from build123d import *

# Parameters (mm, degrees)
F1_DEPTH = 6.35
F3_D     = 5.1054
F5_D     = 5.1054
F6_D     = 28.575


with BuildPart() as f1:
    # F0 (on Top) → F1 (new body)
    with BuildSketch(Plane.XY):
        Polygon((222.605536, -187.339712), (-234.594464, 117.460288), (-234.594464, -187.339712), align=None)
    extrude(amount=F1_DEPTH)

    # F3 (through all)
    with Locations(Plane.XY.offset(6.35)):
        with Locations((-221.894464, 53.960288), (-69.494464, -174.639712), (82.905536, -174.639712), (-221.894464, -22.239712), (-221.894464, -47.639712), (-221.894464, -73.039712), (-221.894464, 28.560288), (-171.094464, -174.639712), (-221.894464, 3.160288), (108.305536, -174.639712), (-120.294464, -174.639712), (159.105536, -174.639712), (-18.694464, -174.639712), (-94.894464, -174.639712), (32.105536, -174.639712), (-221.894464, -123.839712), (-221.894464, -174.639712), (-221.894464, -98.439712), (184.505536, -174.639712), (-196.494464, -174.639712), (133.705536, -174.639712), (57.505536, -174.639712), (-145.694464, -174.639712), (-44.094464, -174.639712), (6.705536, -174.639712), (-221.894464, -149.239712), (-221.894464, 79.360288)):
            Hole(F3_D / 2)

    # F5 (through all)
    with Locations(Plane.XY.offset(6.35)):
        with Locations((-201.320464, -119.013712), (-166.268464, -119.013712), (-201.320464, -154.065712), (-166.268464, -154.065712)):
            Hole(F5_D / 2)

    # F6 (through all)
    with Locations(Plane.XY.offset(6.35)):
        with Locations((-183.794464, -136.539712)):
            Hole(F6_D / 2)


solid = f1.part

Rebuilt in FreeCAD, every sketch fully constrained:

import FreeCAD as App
import Part
import Sketcher
Q = App.Units.Quantity

doc = App.newDocument("Part")
body = doc.addObject("PartDesign::Body", "Body")

# Sketch on XY plane
sketch1 = body.newObject("Sketcher::SketchObject", "Sketch")
sketch1.AttachmentSupport = (doc.getObject("XY_Plane"), [""])
sketch1.MapMode = "FlatFace"
sketch1.addGeometry(Part.LineSegment(App.Vector(223, -187, 0), App.Vector(-235, 117, 0)), False)
sketch1.addGeometry(Part.LineSegment(App.Vector(-235, 117, 0), App.Vector(-235, -187, 0)), False)
sketch1.addGeometry(Part.LineSegment(App.Vector(-235, -187, 0), App.Vector(223, -187, 0)), False)
sketch1.addConstraint(Sketcher.Constraint("Coincident", 0, 2, 1, 1))
sketch1.addConstraint(Sketcher.Constraint("Coincident", 1, 2, 2, 1))
sketch1.addConstraint(Sketcher.Constraint("Coincident", 2, 2, 0, 1))
sketch1.addConstraint(Sketcher.Constraint("Vertical", 1))
sketch1.addConstraint(Sketcher.Constraint("Horizontal", 2))
sketch1.addConstraint(Sketcher.Constraint("DistanceX", 2, 1, 2, 2, Q("18 in")))
sketch1.addConstraint(Sketcher.Constraint("DistanceY", 1, 2, 1, 1, Q("12 in")))
sketch1.addConstraint(Sketcher.Constraint("DistanceY", -1, 1, 0, 2, Q("117.460288 mm")))
sketch1.addConstraint(Sketcher.Constraint("DistanceX", 0, 2, -1, 1, Q("234.594464 mm")))
pad1 = body.newObject("PartDesign::Pad", "Pad")
pad1.Profile = sketch1
pad1.Length = Q("0.25 in")

# Sketch on XY plane
sketch2 = body.newObject("Sketcher::SketchObject", "Sketch001")
sketch2.AttachmentSupport = (doc.getObject("XY_Plane"), [""])
sketch2.MapMode = "FlatFace"
sketch2.AttachmentOffset = App.Placement(App.Vector(0, 0, 0.25 * 25.4), App.Rotation())
sketch2.addGeometry(Part.Circle(App.Vector(-221.9, 54, 0), App.Vector(0, 0, 1), 2.6), False)
sketch2.addGeometry(Part.Circle(App.Vector(-69.5, -174.6, 0), App.Vector(0, 0, 1), 2.6), False)
sketch2.addGeometry(Part.Circle(App.Vector(82.9, -174.6, 0), App.Vector(0, 0, 1), 2.6), False)
sketch2.addGeometry(Part.Circle(App.Vector(-221.9, -22.2, 0), App.Vector(0, 0, 1), 2.6), False)
sketch2.addGeometry(Part.Circle(App.Vector(-221.9, -47.6, 0), App.Vector(0, 0, 1), 2.6), False)
sketch2.addGeometry(Part.Circle(App.Vector(-221.9, -73, 0), App.Vector(0, 0, 1), 2.6), False)
sketch2.addGeometry(Part.Circle(App.Vector(-221.9, 28.6, 0), App.Vector(0, 0, 1), 2.6), False)
sketch2.addGeometry(Part.Circle(App.Vector(-171.1, -174.6, 0), App.Vector(0, 0, 1), 2.6), False)
sketch2.addGeometry(Part.Circle(App.Vector(-221.9, 3.2, 0), App.Vector(0, 0, 1), 2.6), False)
sketch2.addGeometry(Part.Circle(App.Vector(108.3, -174.6, 0), App.Vector(0, 0, 1), 2.6), False)
sketch2.addGeometry(Part.Circle(App.Vector(-120.3, -174.6, 0), App.Vector(0, 0, 1), 2.6), False)
sketch2.addGeometry(Part.Circle(App.Vector(159.1, -174.6, 0), App.Vector(0, 0, 1), 2.6), False)
sketch2.addGeometry(Part.Circle(App.Vector(-18.7, -174.6, 0), App.Vector(0, 0, 1), 2.6), False)
sketch2.addGeometry(Part.Circle(App.Vector(-94.9, -174.6, 0), App.Vector(0, 0, 1), 2.6), False)
sketch2.addGeometry(Part.Circle(App.Vector(32.1, -174.6, 0), App.Vector(0, 0, 1), 2.6), False)
sketch2.addGeometry(Part.Circle(App.Vector(-221.9, -123.8, 0), App.Vector(0, 0, 1), 2.6), False)
sketch2.addGeometry(Part.Circle(App.Vector(-221.9, -174.6, 0), App.Vector(0, 0, 1), 2.6), False)
sketch2.addGeometry(Part.Circle(App.Vector(-221.9, -98.4, 0), App.Vector(0, 0, 1), 2.6), False)
sketch2.addGeometry(Part.Circle(App.Vector(184.5, -174.6, 0), App.Vector(0, 0, 1), 2.6), False)
sketch2.addGeometry(Part.Circle(App.Vector(-196.5, -174.6, 0), App.Vector(0, 0, 1), 2.6), False)
sketch2.addGeometry(Part.Circle(App.Vector(133.7, -174.6, 0), App.Vector(0, 0, 1), 2.6), False)
sketch2.addGeometry(Part.Circle(App.Vector(57.5, -174.6, 0), App.Vector(0, 0, 1), 2.6), False)
sketch2.addGeometry(Part.Circle(App.Vector(-145.7, -174.6, 0), App.Vector(0, 0, 1), 2.6), False)
sketch2.addGeometry(Part.Circle(App.Vector(-44.1, -174.6, 0), App.Vector(0, 0, 1), 2.6), False)
sketch2.addGeometry(Part.Circle(App.Vector(6.7, -174.6, 0), App.Vector(0, 0, 1), 2.6), False)
sketch2.addGeometry(Part.Circle(App.Vector(-221.9, -149.2, 0), App.Vector(0, 0, 1), 2.6), False)
sketch2.addGeometry(Part.Circle(App.Vector(-221.9, 79.4, 0), App.Vector(0, 0, 1), 2.6), False)
sketch2.addConstraint(Sketcher.Constraint("Equal", 0, 1))
sketch2.addConstraint(Sketcher.Constraint("Equal", 1, 2))
sketch2.addConstraint(Sketcher.Constraint("Equal", 2, 3))
sketch2.addConstraint(Sketcher.Constraint("Equal", 3, 4))
sketch2.addConstraint(Sketcher.Constraint("Equal", 4, 5))
sketch2.addConstraint(Sketcher.Constraint("Equal", 5, 6))
sketch2.addConstraint(Sketcher.Constraint("Equal", 6, 7))
sketch2.addConstraint(Sketcher.Constraint("Equal", 7, 8))
sketch2.addConstraint(Sketcher.Constraint("Equal", 8, 9))
sketch2.addConstraint(Sketcher.Constraint("Equal", 9, 10))
sketch2.addConstraint(Sketcher.Constraint("Equal", 10, 11))
sketch2.addConstraint(Sketcher.Constraint("Equal", 11, 12))
sketch2.addConstraint(Sketcher.Constraint("Equal", 12, 13))
sketch2.addConstraint(Sketcher.Constraint("Equal", 13, 14))
sketch2.addConstraint(Sketcher.Constraint("Equal", 14, 15))
sketch2.addConstraint(Sketcher.Constraint("Equal", 15, 16))
sketch2.addConstraint(Sketcher.Constraint("Equal", 16, 17))
sketch2.addConstraint(Sketcher.Constraint("Equal", 17, 18))
sketch2.addConstraint(Sketcher.Constraint("Equal", 18, 19))
sketch2.addConstraint(Sketcher.Constraint("Equal", 19, 20))
sketch2.addConstraint(Sketcher.Constraint("Equal", 20, 21))
sketch2.addConstraint(Sketcher.Constraint("Equal", 21, 22))
sketch2.addConstraint(Sketcher.Constraint("Equal", 22, 23))
sketch2.addConstraint(Sketcher.Constraint("Equal", 23, 24))
sketch2.addConstraint(Sketcher.Constraint("Equal", 24, 25))
sketch2.addConstraint(Sketcher.Constraint("Equal", 25, 26))
sketch2.addConstraint(Sketcher.Constraint("Horizontal", 1, 3, 2, 3))
sketch2.addConstraint(Sketcher.Constraint("Horizontal", 2, 3, 7, 3))
sketch2.addConstraint(Sketcher.Constraint("Horizontal", 7, 3, 9, 3))
sketch2.addConstraint(Sketcher.Constraint("Horizontal", 9, 3, 10, 3))
sketch2.addConstraint(Sketcher.Constraint("Horizontal", 10, 3, 11, 3))
sketch2.addConstraint(Sketcher.Constraint("Horizontal", 11, 3, 12, 3))
sketch2.addConstraint(Sketcher.Constraint("Horizontal", 12, 3, 13, 3))
sketch2.addConstraint(Sketcher.Constraint("Horizontal", 13, 3, 14, 3))
sketch2.addConstraint(Sketcher.Constraint("Horizontal", 14, 3, 16, 3))
sketch2.addConstraint(Sketcher.Constraint("Horizontal", 16, 3, 18, 3))
sketch2.addConstraint(Sketcher.Constraint("Horizontal", 18, 3, 19, 3))
sketch2.addConstraint(Sketcher.Constraint("Horizontal", 19, 3, 20, 3))
sketch2.addConstraint(Sketcher.Constraint("Horizontal", 20, 3, 21, 3))
sketch2.addConstraint(Sketcher.Constraint("Horizontal", 21, 3, 22, 3))
sketch2.addConstraint(Sketcher.Constraint("Horizontal", 22, 3, 23, 3))
sketch2.addConstraint(Sketcher.Constraint("Horizontal", 23, 3, 24, 3))
sketch2.addConstraint(Sketcher.Constraint("Vertical", 0, 3, 3, 3))
sketch2.addConstraint(Sketcher.Constraint("Vertical", 3, 3, 4, 3))
sketch2.addConstraint(Sketcher.Constraint("Vertical", 4, 3, 5, 3))
sketch2.addConstraint(Sketcher.Constraint("Vertical", 5, 3, 6, 3))
sketch2.addConstraint(Sketcher.Constraint("Vertical", 6, 3, 8, 3))
sketch2.addConstraint(Sketcher.Constraint("Vertical", 8, 3, 15, 3))
sketch2.addConstraint(Sketcher.Constraint("Vertical", 15, 3, 16, 3))
sketch2.addConstraint(Sketcher.Constraint("Vertical", 16, 3, 17, 3))
sketch2.addConstraint(Sketcher.Constraint("Vertical", 17, 3, 25, 3))
sketch2.addConstraint(Sketcher.Constraint("Vertical", 25, 3, 26, 3))
sketch2.addConstraint(Sketcher.Constraint("Diameter", 0, Q("0.201 in")))
sketch2.addConstraint(Sketcher.Constraint("DistanceX", 0, 3, 1, 3, Q("6 in")))
sketch2.addConstraint(Sketcher.Constraint("DistanceY", 1, 3, 0, 3, Q("9 in")))
sketch2.addConstraint(Sketcher.Constraint("DistanceX", 1, 3, 2, 3, Q("6 in")))
sketch2.addConstraint(Sketcher.Constraint("DistanceY", 3, 3, 0, 3, Q("3 in")))
sketch2.addConstraint(Sketcher.Constraint("DistanceY", 4, 3, 3, 3, Q("1 in")))
sketch2.addConstraint(Sketcher.Constraint("DistanceY", 5, 3, 4, 3, Q("1 in")))
sketch2.addConstraint(Sketcher.Constraint("DistanceY", 6, 3, 0, 3, Q("1 in")))
sketch2.addConstraint(Sketcher.Constraint("DistanceX", 7, 3, 1, 3, Q("4 in")))
sketch2.addConstraint(Sketcher.Constraint("DistanceY", 8, 3, 6, 3, Q("1 in")))
sketch2.addConstraint(Sketcher.Constraint("DistanceX", 2, 3, 9, 3, Q("1 in")))
sketch2.addConstraint(Sketcher.Constraint("DistanceX", 7, 3, 10, 3, Q("2 in")))
sketch2.addConstraint(Sketcher.Constraint("DistanceX", 9, 3, 11, 3, Q("2 in")))
sketch2.addConstraint(Sketcher.Constraint("DistanceX", 1, 3, 12, 3, Q("2 in")))
sketch2.addConstraint(Sketcher.Constraint("DistanceX", 13, 3, 1, 3, Q("1 in")))
sketch2.addConstraint(Sketcher.Constraint("DistanceX", 14, 3, 2, 3, Q("2 in")))
sketch2.addConstraint(Sketcher.Constraint("DistanceY", 15, 3, 5, 3, Q("2 in")))
sketch2.addConstraint(Sketcher.Constraint("DistanceY", 17, 3, 5, 3, Q("1 in")))
sketch2.addConstraint(Sketcher.Constraint("DistanceX", 11, 3, 18, 3, Q("1 in")))
sketch2.addConstraint(Sketcher.Constraint("DistanceX", 19, 3, 7, 3, Q("1 in")))
sketch2.addConstraint(Sketcher.Constraint("DistanceX", 9, 3, 20, 3, Q("1 in")))
sketch2.addConstraint(Sketcher.Constraint("DistanceX", 21, 3, 2, 3, Q("1 in")))
sketch2.addConstraint(Sketcher.Constraint("DistanceX", 7, 3, 22, 3, Q("1 in")))
sketch2.addConstraint(Sketcher.Constraint("DistanceX", 1, 3, 23, 3, Q("1 in")))
sketch2.addConstraint(Sketcher.Constraint("DistanceX", 12, 3, 24, 3, Q("1 in")))
sketch2.addConstraint(Sketcher.Constraint("DistanceY", 25, 3, 15, 3, Q("1 in")))
sketch2.addConstraint(Sketcher.Constraint("DistanceY", 0, 3, 26, 3, Q("1 in")))
sketch2.addConstraint(Sketcher.Constraint("DistanceY", 1, 3, -1, 1, Q("174.639712 mm")))
sketch2.addConstraint(Sketcher.Constraint("DistanceX", 0, 3, -1, 1, Q("221.894464 mm")))
doc.recompute()
hole = body.newObject("PartDesign::Hole", "Hole")
hole.Profile = sketch2
hole.ThreadType = "None"
hole.Diameter = Q("0.201 in")
hole.DepthType = "ThroughAll"

# Sketch on XY plane
sketch3 = body.newObject("Sketcher::SketchObject", "Sketch002")
sketch3.AttachmentSupport = (doc.getObject("XY_Plane"), [""])
sketch3.MapMode = "FlatFace"
sketch3.AttachmentOffset = App.Placement(App.Vector(0, 0, 0.25 * 25.4), App.Rotation())
sketch3.addGeometry(Part.Circle(App.Vector(-201.3, -119, 0), App.Vector(0, 0, 1), 2.6), False)
sketch3.addGeometry(Part.Circle(App.Vector(-166.3, -119, 0), App.Vector(0, 0, 1), 2.6), False)
sketch3.addGeometry(Part.Circle(App.Vector(-201.3, -154.1, 0), App.Vector(0, 0, 1), 2.6), False)
sketch3.addGeometry(Part.Circle(App.Vector(-166.3, -154.1, 0), App.Vector(0, 0, 1), 2.6), False)
sketch3.addConstraint(Sketcher.Constraint("Equal", 0, 1))
sketch3.addConstraint(Sketcher.Constraint("Equal", 1, 2))
sketch3.addConstraint(Sketcher.Constraint("Equal", 2, 3))
sketch3.addConstraint(Sketcher.Constraint("Horizontal", 0, 3, 1, 3))
sketch3.addConstraint(Sketcher.Constraint("Horizontal", 2, 3, 3, 3))
sketch3.addConstraint(Sketcher.Constraint("Vertical", 0, 3, 2, 3))
sketch3.addConstraint(Sketcher.Constraint("Vertical", 1, 3, 3, 3))
sketch3.addConstraint(Sketcher.Constraint("Diameter", 0, Q("0.201 in")))
sketch3.addConstraint(Sketcher.Constraint("DistanceX", 0, 3, 1, 3, Q("1.38 in")))
sketch3.addConstraint(Sketcher.Constraint("DistanceY", 2, 3, 0, 3, Q("1.38 in")))
sketch3.addConstraint(Sketcher.Constraint("DistanceY", 0, 3, -1, 1, Q("119.013712 mm")))
sketch3.addConstraint(Sketcher.Constraint("DistanceX", 0, 3, -1, 1, Q("201.320464 mm")))
doc.recompute()
hole2 = body.newObject("PartDesign::Hole", "Hole001")
hole2.Profile = sketch3
hole2.ThreadType = "None"
hole2.Diameter = Q("0.201 in")
hole2.DepthType = "ThroughAll"

# Sketch on XY plane
sketch4 = body.newObject("Sketcher::SketchObject", "Sketch003")
sketch4.AttachmentSupport = (doc.getObject("XY_Plane"), [""])
sketch4.MapMode = "FlatFace"
sketch4.AttachmentOffset = App.Placement(App.Vector(0, 0, 0.25 * 25.4), App.Rotation())
sketch4.addGeometry(Part.Circle(App.Vector(-184, -137, 0), App.Vector(0, 0, 1), 14), False)
sketch4.addConstraint(Sketcher.Constraint("Diameter", 0, Q("1.125 in")))
sketch4.addConstraint(Sketcher.Constraint("DistanceY", 0, 3, -1, 1, Q("136.539712 mm")))
sketch4.addConstraint(Sketcher.Constraint("DistanceX", 0, 3, -1, 1, Q("183.794464 mm")))
doc.recompute()
hole3 = body.newObject("PartDesign::Hole", "Hole002")
hole3.Profile = sketch4
hole3.ThreadType = "None"
hole3.Diameter = Q("1.125 in")
hole3.DepthType = "ThroughAll"

doc.recompute()
